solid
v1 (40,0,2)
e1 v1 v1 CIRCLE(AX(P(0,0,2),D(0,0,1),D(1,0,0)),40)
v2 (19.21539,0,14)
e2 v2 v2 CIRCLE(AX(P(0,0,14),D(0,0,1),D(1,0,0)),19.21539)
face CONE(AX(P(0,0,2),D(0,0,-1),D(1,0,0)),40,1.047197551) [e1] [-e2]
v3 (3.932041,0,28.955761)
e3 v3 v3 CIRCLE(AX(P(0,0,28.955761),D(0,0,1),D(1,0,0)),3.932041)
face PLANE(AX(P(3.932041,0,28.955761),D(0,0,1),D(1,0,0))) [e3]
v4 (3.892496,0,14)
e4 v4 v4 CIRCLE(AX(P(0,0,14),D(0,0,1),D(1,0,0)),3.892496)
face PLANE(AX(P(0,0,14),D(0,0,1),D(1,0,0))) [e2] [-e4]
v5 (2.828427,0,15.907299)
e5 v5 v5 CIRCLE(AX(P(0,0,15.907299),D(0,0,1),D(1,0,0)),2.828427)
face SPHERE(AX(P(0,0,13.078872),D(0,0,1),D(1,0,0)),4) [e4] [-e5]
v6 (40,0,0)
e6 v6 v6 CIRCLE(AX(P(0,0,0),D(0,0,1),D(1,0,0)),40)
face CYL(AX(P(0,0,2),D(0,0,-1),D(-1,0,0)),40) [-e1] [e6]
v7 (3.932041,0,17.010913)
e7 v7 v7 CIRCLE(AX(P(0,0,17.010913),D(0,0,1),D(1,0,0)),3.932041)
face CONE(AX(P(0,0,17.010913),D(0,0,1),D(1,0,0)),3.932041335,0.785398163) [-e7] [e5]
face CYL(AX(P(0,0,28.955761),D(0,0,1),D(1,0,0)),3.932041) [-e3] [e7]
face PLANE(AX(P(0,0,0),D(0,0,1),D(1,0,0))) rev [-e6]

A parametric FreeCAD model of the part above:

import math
import FreeCAD as App
import Part
import Sketcher
Q = App.Units.Quantity

doc = App.newDocument("Part")
params = doc.addObject("Spreadsheet::Sheet", "Params")
for row, (alias, value) in enumerate([
    ("sketch1_diameter", "80 mm"),
    ("pad1_length", "2 mm"),
    ("sketch2_diameter", "80 mm"),
    ("pad2_length", "12 mm"),
    ("pad2_taper", "-60 deg"),
    ("sketch3_radius", "4 mm"),
    ("revolution_angle", "360 deg"),
], start=1):
    params.set(f"A{row}", alias)
    params.set(f"B{row}", "=" + value)
    params.setAlias(f"B{row}", alias)

body = doc.addObject("PartDesign::Body", "Body")

# Sketch on XY plane
sketch1 = body.newObject("Sketcher::SketchObject", "Sketch")
sketch1.AttachmentSupport = (doc.getObject("XY_Plane"), [""])
sketch1.MapMode = "FlatFace"
sketch1.addGeometry(Part.Circle(App.Vector(0, 0, 0), App.Vector(0, 0, 1), 40), False)
sketch1.addConstraint(Sketcher.Constraint("Coincident", 0, 3, -1, 1))
sketch1.addConstraint(Sketcher.Constraint("Diameter", 0, Q("80 mm")))
sketch1.setExpression("Constraints[1]", "Params.sketch1_diameter")
pad1 = body.newObject("PartDesign::Pad", "Pad")
pad1.Profile = sketch1
pad1.setExpression("Length", "Params.pad1_length")

# Sketch on XY plane
sketch2 = body.newObject("Sketcher::SketchObject", "Sketch001")
sketch2.AttachmentSupport = (doc.getObject("XY_Plane"), [""])
sketch2.MapMode = "FlatFace"
sketch2.AttachmentOffset = App.Placement(App.Vector(0, 0, 2), App.Rotation())
sketch2.addGeometry(Part.Circle(App.Vector(0, 0, 0), App.Vector(0, 0, 1), 40), False)
sketch2.addConstraint(Sketcher.Constraint("Coincident", 0, 3, -1, 1))
sketch2.addConstraint(Sketcher.Constraint("Diameter", 0, Q("80 mm")))
sketch2.setExpression("Constraints[1]", "Params.sketch2_diameter")
pad2 = body.newObject("PartDesign::Pad", "Pad001")
pad2.Profile = sketch2
pad2.setExpression("Length", "Params.pad2_length")
pad2.setExpression("TaperAngle", "Params.pad2_taper")

# Sketch on XZ plane
sketch3 = body.newObject("Sketcher::SketchObject", "Sketch002")
sketch3.AttachmentSupport = (doc.getObject("XZ_Plane"), [""])
sketch3.MapMode = "FlatFace"
sketch3.addGeometry(Part.LineSegment(App.Vector(3.9, 17, 0), App.Vector(2.8, 15.9, 0)), False)
sketch3.addGeometry(Part.ArcOfCircle(Part.Circle(App.Vector(0, 13.1, 0), App.Vector(0, 0, 1), 4), math.radians(-90), math.radians(45)), False)
sketch3.addGeometry(Part.LineSegment(App.Vector(0, 9.1, 0), App.Vector(0, 29, 0)), False)
sketch3.addGeometry(Part.LineSegment(App.Vector(0, 29, 0), App.Vector(3.9, 29, 0)), False)
sketch3.addGeometry(Part.LineSegment(App.Vector(3.9, 29, 0), App.Vector(3.9, 17, 0)), False)
sketch3.addConstraint(Sketcher.Constraint("Coincident", 0, 2, 1, 2))
sketch3.addConstraint(Sketcher.Constraint("Coincident", 1, 1, 2, 1))
sketch3.addConstraint(Sketcher.Constraint("Coincident", 2, 2, 3, 1))
sketch3.addConstraint(Sketcher.Constraint("Coincident", 3, 2, 4, 1))
sketch3.addConstraint(Sketcher.Constraint("Coincident", 4, 2, 0, 1))
sketch3.addConstraint(Sketcher.Constraint("Vertical", 2))
sketch3.addConstraint(Sketcher.Constraint("Horizontal", 3))
sketch3.addConstraint(Sketcher.Constraint("Vertical", 4))
sketch3.addConstraint(Sketcher.Constraint("PointOnObject", 1, 3, -2))
sketch3.addConstraint(Sketcher.Constraint("PointOnObject", 1, 1, -2))
sketch3.addConstraint(Sketcher.Constraint("Radius", 1, Q("4 mm")))
sketch3.addConstraint(Sketcher.Constraint("Angle", 0, Q("-135 deg")))
sketch3.addConstraint(Sketcher.Constraint("DistanceX", 3, 1, 3, 2, Q("3.932041 mm")))
sketch3.addConstraint(Sketcher.Constraint("DistanceY", 2, 1, 2, 2, Q("19.876889 mm")))
sketch3.addConstraint(Sketcher.Constraint("DistanceY", -1, 1, 0, 2, Q("15.907299 mm")))
sketch3.addConstraint(Sketcher.Constraint("DistanceY", 4, 2, 4, 1, Q("11.944848 mm")))
sketch3.setExpression("Constraints[10]", "Params.sketch3_radius")
revolution = body.newObject("PartDesign::Revolution", "Revolution")
revolution.Profile = sketch3
revolution.ReferenceAxis = (sketch3, ["V_Axis"])
revolution.setExpression("Angle", "Params.revolution_angle")

doc.recompute()
